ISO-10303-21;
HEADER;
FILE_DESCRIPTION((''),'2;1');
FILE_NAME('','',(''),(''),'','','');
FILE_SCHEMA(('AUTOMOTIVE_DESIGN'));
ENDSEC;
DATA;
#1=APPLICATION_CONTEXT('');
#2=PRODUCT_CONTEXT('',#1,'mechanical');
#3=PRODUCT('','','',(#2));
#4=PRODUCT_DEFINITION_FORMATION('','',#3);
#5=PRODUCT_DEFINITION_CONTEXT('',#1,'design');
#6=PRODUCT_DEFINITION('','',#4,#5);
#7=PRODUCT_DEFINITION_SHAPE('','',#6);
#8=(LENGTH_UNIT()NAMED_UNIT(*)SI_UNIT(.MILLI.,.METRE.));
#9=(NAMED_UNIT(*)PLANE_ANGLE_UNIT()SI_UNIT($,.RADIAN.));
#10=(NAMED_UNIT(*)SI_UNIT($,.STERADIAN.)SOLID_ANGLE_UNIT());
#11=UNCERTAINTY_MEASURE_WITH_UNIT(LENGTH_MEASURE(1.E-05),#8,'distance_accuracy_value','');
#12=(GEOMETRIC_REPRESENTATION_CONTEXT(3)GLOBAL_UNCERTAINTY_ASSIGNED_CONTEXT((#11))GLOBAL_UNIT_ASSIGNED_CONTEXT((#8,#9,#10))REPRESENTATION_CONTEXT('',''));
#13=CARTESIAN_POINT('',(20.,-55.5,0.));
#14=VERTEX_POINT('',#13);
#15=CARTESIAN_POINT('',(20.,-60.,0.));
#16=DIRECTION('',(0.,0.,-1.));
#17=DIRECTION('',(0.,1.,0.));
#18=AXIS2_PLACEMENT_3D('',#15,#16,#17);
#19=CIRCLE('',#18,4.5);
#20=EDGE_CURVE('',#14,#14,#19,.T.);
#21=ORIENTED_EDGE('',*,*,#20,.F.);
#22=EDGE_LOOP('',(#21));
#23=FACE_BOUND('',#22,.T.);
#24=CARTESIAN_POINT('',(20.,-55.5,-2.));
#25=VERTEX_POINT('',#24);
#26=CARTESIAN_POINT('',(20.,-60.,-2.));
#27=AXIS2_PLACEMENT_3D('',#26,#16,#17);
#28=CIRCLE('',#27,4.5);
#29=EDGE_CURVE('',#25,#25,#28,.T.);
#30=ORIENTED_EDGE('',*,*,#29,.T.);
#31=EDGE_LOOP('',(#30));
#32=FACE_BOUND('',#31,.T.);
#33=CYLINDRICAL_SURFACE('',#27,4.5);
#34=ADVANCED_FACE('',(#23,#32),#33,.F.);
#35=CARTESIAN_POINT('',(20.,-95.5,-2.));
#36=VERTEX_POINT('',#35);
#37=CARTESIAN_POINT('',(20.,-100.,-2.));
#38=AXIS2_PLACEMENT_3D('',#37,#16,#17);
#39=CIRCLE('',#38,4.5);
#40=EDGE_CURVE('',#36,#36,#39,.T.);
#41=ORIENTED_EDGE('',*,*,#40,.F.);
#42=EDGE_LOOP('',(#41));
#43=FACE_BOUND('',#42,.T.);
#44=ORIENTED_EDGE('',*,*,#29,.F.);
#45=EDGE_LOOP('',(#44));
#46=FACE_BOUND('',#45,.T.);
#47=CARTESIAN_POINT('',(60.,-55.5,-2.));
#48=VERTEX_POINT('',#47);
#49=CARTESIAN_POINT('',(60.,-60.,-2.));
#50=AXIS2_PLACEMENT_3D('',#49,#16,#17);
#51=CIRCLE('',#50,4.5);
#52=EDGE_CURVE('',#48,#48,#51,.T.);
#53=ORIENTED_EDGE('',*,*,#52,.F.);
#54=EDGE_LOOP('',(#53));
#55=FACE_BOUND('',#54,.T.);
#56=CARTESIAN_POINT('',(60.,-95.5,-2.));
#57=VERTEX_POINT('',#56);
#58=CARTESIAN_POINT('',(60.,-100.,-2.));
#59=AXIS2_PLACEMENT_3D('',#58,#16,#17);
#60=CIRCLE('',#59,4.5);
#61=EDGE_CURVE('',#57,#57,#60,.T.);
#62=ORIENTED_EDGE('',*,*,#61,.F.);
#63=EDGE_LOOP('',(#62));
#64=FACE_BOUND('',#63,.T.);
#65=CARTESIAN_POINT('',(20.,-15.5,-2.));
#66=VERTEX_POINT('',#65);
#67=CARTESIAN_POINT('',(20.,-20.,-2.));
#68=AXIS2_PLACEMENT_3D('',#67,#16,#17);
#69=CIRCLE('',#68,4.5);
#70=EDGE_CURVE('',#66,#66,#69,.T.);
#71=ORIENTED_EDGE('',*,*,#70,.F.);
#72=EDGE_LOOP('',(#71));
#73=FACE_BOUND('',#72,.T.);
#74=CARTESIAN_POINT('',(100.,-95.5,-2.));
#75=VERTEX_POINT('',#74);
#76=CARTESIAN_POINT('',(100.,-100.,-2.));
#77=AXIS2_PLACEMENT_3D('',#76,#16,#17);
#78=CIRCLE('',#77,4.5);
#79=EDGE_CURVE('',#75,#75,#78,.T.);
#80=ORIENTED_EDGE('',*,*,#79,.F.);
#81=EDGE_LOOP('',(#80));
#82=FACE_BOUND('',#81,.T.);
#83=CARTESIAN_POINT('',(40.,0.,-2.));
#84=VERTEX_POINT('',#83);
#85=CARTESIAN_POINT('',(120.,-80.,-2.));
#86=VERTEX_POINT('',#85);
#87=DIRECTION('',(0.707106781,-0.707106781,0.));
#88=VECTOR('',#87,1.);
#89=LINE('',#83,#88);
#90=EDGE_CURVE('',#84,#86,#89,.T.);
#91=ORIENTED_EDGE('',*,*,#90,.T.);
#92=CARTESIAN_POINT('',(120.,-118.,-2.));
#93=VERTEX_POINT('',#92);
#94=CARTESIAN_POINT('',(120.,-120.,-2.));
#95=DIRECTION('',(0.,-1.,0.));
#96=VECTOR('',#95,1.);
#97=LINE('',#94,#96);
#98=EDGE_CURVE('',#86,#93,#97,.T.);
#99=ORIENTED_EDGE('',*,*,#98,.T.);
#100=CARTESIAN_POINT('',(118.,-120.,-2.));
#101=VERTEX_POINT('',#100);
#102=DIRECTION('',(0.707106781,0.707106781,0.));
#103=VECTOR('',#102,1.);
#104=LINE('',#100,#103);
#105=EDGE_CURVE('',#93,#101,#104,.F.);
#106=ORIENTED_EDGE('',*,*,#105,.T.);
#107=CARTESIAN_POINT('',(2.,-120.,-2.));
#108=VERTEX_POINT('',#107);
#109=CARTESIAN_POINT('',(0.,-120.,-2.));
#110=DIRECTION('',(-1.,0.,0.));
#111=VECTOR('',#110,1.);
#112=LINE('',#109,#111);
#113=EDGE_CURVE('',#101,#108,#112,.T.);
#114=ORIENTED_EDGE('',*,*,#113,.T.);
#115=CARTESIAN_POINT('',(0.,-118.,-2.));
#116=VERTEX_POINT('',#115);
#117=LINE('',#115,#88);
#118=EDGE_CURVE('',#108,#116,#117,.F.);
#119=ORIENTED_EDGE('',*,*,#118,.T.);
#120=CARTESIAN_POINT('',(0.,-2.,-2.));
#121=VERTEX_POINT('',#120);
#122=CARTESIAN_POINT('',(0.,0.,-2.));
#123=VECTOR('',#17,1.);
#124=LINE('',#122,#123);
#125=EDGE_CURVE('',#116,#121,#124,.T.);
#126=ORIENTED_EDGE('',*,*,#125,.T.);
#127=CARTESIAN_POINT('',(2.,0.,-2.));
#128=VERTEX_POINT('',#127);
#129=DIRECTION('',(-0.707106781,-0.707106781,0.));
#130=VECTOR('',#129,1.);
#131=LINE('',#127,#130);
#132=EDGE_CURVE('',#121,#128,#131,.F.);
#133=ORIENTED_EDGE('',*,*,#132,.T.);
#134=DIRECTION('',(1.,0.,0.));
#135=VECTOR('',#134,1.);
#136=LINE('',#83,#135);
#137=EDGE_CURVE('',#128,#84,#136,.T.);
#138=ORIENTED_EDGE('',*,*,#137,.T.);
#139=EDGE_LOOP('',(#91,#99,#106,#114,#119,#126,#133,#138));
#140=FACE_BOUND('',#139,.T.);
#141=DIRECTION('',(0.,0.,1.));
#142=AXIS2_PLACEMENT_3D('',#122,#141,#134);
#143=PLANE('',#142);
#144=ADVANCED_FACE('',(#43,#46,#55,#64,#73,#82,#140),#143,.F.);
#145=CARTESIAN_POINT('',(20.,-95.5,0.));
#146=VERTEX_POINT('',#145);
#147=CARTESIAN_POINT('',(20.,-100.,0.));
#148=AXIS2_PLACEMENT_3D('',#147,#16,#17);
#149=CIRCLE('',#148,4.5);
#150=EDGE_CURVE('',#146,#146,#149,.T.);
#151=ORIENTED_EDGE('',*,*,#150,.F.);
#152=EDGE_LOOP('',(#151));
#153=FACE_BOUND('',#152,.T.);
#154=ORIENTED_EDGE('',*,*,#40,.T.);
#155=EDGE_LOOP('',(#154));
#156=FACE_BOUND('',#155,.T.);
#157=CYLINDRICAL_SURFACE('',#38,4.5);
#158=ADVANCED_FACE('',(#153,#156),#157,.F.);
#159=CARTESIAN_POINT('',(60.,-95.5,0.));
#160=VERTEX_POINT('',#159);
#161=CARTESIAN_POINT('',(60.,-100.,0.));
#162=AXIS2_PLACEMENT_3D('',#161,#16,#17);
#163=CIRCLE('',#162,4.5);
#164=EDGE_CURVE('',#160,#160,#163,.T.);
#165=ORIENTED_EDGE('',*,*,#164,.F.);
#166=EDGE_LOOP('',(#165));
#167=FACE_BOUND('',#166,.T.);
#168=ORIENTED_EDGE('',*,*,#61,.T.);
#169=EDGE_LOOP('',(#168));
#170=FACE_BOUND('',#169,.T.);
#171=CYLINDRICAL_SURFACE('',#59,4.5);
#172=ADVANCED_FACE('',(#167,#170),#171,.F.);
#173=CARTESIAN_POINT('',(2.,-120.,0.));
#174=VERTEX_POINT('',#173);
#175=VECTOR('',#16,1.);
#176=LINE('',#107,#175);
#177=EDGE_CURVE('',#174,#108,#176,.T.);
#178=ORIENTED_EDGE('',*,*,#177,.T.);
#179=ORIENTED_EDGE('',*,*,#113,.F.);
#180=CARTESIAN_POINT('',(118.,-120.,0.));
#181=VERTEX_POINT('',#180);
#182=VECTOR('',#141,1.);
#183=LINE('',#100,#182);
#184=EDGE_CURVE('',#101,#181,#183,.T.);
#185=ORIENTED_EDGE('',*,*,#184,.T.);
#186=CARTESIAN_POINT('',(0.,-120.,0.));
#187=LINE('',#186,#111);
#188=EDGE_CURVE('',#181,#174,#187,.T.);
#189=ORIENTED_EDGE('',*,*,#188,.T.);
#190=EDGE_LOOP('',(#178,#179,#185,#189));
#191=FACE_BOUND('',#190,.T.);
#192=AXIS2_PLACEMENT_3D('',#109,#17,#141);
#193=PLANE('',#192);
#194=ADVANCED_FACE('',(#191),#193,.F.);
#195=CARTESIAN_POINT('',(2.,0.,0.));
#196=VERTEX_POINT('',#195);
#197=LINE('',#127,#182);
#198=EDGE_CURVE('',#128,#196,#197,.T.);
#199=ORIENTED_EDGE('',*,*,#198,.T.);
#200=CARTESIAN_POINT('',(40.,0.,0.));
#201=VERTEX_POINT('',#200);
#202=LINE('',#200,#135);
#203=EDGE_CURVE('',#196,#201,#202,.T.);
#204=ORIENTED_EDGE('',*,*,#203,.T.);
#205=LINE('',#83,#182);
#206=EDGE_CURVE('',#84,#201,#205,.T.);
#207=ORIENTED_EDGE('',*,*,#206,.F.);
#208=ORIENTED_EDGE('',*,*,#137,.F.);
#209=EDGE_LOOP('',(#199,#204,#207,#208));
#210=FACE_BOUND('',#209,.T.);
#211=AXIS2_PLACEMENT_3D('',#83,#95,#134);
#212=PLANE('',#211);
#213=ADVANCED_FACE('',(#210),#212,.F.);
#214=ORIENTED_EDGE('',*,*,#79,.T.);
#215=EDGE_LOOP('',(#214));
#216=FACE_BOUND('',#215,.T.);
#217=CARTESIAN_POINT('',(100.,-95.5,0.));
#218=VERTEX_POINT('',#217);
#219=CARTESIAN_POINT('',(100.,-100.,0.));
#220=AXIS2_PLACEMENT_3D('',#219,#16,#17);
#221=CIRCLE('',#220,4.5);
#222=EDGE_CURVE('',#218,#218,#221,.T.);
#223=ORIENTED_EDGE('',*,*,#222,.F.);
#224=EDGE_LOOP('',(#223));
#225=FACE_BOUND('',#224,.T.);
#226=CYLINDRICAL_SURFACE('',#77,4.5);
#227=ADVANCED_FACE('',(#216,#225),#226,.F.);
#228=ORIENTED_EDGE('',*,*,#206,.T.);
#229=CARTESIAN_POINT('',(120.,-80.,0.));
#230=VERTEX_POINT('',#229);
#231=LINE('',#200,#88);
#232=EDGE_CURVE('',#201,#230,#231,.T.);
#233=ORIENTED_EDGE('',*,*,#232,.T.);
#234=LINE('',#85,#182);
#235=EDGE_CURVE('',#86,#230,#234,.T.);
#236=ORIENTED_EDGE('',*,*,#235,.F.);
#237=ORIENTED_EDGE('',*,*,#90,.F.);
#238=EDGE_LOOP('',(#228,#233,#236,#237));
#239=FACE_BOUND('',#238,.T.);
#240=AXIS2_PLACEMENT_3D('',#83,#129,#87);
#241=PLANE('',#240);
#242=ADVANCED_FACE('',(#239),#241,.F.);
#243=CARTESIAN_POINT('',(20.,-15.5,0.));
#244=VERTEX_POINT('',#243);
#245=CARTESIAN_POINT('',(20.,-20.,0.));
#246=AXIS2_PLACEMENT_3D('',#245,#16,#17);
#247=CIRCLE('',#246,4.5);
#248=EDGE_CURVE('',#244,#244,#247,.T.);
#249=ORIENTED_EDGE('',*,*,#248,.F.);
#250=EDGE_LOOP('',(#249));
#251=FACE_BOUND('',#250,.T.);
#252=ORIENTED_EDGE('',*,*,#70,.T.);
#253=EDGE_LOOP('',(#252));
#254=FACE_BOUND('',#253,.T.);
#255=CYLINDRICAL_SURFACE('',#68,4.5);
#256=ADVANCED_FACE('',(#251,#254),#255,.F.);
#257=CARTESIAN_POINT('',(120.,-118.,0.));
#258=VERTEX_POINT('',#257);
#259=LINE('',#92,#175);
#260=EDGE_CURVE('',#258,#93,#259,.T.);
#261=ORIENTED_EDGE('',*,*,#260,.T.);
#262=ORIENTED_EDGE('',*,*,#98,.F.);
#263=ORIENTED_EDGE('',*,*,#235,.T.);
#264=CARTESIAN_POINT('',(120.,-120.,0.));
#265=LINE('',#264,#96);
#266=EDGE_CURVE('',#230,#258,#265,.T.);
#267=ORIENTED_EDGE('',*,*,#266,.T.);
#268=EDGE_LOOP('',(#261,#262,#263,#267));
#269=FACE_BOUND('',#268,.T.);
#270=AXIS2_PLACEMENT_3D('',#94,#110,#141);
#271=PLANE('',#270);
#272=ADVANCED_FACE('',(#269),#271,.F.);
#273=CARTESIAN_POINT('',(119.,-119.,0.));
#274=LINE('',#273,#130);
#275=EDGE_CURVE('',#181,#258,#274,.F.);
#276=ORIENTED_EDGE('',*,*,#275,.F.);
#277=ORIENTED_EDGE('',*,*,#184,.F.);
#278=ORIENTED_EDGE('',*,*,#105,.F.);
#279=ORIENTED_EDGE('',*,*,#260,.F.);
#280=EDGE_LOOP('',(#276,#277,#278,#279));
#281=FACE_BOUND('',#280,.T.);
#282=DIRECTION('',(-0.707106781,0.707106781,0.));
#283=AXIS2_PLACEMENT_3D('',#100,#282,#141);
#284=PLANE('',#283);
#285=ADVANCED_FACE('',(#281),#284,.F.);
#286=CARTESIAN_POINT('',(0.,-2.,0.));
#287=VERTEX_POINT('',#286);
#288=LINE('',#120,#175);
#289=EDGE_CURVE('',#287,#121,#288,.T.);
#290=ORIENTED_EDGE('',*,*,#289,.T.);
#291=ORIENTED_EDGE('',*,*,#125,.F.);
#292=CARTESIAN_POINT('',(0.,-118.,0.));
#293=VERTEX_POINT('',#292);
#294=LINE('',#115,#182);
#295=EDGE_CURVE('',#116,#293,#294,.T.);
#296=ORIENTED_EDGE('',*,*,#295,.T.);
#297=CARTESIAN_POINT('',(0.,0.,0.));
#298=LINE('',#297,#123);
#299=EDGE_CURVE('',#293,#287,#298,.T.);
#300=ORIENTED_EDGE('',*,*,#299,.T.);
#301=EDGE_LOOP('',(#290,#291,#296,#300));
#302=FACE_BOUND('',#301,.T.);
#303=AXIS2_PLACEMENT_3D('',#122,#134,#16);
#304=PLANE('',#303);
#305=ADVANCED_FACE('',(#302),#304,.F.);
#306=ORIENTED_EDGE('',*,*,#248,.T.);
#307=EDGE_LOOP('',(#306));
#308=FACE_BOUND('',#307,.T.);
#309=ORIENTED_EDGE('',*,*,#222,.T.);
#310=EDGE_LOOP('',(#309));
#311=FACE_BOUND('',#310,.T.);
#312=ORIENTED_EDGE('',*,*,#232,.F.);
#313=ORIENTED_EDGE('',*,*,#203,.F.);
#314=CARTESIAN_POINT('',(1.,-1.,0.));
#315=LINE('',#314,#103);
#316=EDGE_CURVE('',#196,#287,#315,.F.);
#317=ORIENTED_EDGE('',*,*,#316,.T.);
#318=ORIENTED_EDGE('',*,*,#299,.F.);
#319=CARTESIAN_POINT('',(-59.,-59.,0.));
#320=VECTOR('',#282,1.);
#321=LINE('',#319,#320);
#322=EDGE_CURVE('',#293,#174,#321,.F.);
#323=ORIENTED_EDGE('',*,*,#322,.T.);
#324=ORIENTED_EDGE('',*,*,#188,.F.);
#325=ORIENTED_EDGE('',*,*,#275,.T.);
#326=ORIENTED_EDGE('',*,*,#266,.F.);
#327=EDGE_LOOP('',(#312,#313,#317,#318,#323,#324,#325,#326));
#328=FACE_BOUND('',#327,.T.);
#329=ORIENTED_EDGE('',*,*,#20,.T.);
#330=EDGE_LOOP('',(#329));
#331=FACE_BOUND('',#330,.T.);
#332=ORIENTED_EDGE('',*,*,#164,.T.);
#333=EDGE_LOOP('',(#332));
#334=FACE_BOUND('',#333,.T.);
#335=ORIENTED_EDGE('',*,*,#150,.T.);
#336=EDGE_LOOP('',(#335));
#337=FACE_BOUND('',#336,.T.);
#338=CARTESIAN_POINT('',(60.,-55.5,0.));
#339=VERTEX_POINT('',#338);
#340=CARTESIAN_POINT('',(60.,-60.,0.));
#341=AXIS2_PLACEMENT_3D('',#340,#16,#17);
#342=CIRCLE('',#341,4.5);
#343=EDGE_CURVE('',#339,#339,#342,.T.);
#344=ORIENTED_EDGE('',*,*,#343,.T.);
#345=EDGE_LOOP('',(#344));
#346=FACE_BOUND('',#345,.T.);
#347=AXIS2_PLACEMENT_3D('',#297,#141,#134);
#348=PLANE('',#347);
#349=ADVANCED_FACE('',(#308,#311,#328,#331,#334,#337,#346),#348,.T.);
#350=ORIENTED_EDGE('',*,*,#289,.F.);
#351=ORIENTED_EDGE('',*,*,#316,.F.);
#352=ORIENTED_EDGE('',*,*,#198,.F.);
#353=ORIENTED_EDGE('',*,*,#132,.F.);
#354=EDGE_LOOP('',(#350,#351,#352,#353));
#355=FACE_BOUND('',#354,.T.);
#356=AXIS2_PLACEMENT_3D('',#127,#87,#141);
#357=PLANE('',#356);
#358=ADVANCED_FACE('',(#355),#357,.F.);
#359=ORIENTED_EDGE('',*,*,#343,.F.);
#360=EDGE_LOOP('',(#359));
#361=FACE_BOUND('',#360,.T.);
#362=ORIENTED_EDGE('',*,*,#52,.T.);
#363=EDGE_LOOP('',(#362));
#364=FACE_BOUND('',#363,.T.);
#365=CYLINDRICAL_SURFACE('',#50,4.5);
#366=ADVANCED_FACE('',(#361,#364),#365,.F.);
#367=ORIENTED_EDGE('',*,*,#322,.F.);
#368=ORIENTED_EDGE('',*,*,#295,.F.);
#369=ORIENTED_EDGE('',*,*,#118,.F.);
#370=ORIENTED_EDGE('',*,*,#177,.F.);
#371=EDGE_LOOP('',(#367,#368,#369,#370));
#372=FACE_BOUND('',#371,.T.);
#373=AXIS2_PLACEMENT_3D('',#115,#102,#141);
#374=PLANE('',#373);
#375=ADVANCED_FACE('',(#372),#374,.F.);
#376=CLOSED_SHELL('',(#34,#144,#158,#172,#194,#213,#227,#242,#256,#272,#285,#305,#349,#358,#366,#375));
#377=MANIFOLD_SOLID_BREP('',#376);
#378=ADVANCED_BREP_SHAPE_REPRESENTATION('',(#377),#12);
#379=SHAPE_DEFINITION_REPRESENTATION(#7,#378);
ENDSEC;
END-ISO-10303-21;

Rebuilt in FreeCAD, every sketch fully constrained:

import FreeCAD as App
import Part
import Sketcher
from FreeCAD import Vector
Q = App.Units.Quantity


def edges_at(feature, points):
    """Names of the edges that pass closest to the given points."""
    edges = feature.Shape.Edges
    near = lambda p: min(range(len(edges)), key=lambda i: edges[i].distToShape(Part.Vertex(*p))[0])
    return sorted({f"Edge{near(p) + 1}" for p in points})

doc = App.newDocument("Part")
body = doc.addObject("PartDesign::Body", "Body")

# Sketch on XY plane
sketch1 = body.newObject("Sketcher::SketchObject", "Sketch")
sketch1.AttachmentSupport = (doc.getObject("XY_Plane"), [""])
sketch1.MapMode = "FlatFace"
sketch1.addGeometry(Part.LineSegment(Vector(0, -120, 0), Vector(0, 0, 0)), False)
sketch1.addGeometry(Part.LineSegment(Vector(0, 0, 0), Vector(40, 0, 0)), False)
sketch1.addGeometry(Part.LineSegment(Vector(40, 0, 0), Vector(120, -80, 0)), False)
sketch1.addGeometry(Part.LineSegment(Vector(120, -80, 0), Vector(120, -120, 0)), False)
sketch1.addGeometry(Part.LineSegment(Vector(120, -120, 0), Vector(0, -120, 0)), False)
sketch1.addConstraint(Sketcher.Constraint("Coincident", 0, 2, 1, 1))
sketch1.addConstraint(Sketcher.Constraint("Coincident", 1, 2, 2, 1))
sketch1.addConstraint(Sketcher.Constraint("Coincident", 2, 2, 3, 1))
sketch1.addConstraint(Sketcher.Constraint("Coincident", 3, 2, 4, 1))
sketch1.addConstraint(Sketcher.Constraint("Coincident", 4, 2, 0, 1))
sketch1.addConstraint(Sketcher.Constraint("Vertical", 0))
sketch1.addConstraint(Sketcher.Constraint("Horizontal", 1))
sketch1.addConstraint(Sketcher.Constraint("Vertical", 3))
sketch1.addConstraint(Sketcher.Constraint("Horizontal", 4))
sketch1.addConstraint(Sketcher.Constraint("Coincident", 0, 2, -1, 1))
sketch1.addConstraint(Sketcher.Constraint("Equal", 4, 0))
sketch1.addConstraint(Sketcher.Constraint("Equal", 1, 3))
sketch1.addConstraint(Sketcher.Constraint("DistanceX", 1, 1, 1, 2, Q("40 mm")))
sketch1.addConstraint(Sketcher.Constraint("DistanceX", 4, 2, 4, 1, Q("120 mm")))
pad1 = body.newObject("PartDesign::Pad", "Pad")
pad1.Profile = sketch1
pad1.Length = 2
pad1.Reversed = True

# Sketch on XY plane
sketch2 = body.newObject("Sketcher::SketchObject", "Sketch001")
sketch2.AttachmentSupport = (doc.getObject("XY_Plane"), [""])
sketch2.MapMode = "FlatFace"
sketch2.AttachmentOffset = App.Placement(Vector(0, 0, -2), App.Rotation())
sketch2.addGeometry(Part.Circle(Vector(60, -100, 0), Vector(0, 0, 1), 4.5), False)
sketch2.addGeometry(Part.Circle(Vector(20, -100, 0), Vector(0, 0, 1), 4.5), False)
sketch2.addGeometry(Part.Circle(Vector(20, -60, 0), Vector(0, 0, 1), 4.5), False)
sketch2.addGeometry(Part.Circle(Vector(20, -20, 0), Vector(0, 0, 1), 4.5), False)
sketch2.addGeometry(Part.Circle(Vector(100, -100, 0), Vector(0, 0, 1), 4.5), False)
sketch2.addGeometry(Part.Circle(Vector(60, -60, 0), Vector(0, 0, 1), 4.5), False)
sketch2.addConstraint(Sketcher.Constraint("Equal", 0, 1))
sketch2.addConstraint(Sketcher.Constraint("Equal", 1, 2))
sketch2.addConstraint(Sketcher.Constraint("Equal", 2, 3))
sketch2.addConstraint(Sketcher.Constraint("Equal", 3, 4))
sketch2.addConstraint(Sketcher.Constraint("Equal", 4, 5))
sketch2.addConstraint(Sketcher.Constraint("Horizontal", 0, 3, 1, 3))
sketch2.addConstraint(Sketcher.Constraint("Horizontal", 1, 3, 4, 3))
sketch2.addConstraint(Sketcher.Constraint("Horizontal", 2, 3, 5, 3))
sketch2.addConstraint(Sketcher.Constraint("Vertical", 1, 3, 2, 3))
sketch2.addConstraint(Sketcher.Constraint("Vertical", 2, 3, 3, 3))
sketch2.addConstraint(Sketcher.Constraint("Vertical", 0, 3, 5, 3))
sketch2.addConstraint(Sketcher.Constraint("Diameter", 0, Q("9 mm")))
sketch2.addConstraint(Sketcher.Constraint("DistanceX", -1, 1, 0, 3, Q("60 mm")))
sketch2.addConstraint(Sketcher.Constraint("DistanceY", 0, 3, -1, 1, Q("100 mm")))
sketch2.addConstraint(Sketcher.Constraint("DistanceX", -1, 1, 1, 3, Q("20 mm")))
sketch2.addConstraint(Sketcher.Constraint("DistanceY", 2, 3, -1, 1, Q("60 mm")))
sketch2.addConstraint(Sketcher.Constraint("DistanceY", 3, 3, -1, 1, Q("20 mm")))
sketch2.addConstraint(Sketcher.Constraint("DistanceX", -1, 1, 4, 3, Q("100 mm")))
doc.recompute()
hole = body.newObject("PartDesign::Hole", "Hole")
hole.Profile = sketch2
hole.ThreadType = "None"
hole.Diameter = 9
hole.DepthType = "ThroughAll"
hole.Reversed = True
doc.recompute()

chamfer = body.newObject("PartDesign::Chamfer", "Chamfer")
chamfer.Base = (hole, edges_at(hole, [(0, 0, -1), (0, -120, -1), (120, -120, -1)]))
chamfer.Size = 2

doc.recompute()
